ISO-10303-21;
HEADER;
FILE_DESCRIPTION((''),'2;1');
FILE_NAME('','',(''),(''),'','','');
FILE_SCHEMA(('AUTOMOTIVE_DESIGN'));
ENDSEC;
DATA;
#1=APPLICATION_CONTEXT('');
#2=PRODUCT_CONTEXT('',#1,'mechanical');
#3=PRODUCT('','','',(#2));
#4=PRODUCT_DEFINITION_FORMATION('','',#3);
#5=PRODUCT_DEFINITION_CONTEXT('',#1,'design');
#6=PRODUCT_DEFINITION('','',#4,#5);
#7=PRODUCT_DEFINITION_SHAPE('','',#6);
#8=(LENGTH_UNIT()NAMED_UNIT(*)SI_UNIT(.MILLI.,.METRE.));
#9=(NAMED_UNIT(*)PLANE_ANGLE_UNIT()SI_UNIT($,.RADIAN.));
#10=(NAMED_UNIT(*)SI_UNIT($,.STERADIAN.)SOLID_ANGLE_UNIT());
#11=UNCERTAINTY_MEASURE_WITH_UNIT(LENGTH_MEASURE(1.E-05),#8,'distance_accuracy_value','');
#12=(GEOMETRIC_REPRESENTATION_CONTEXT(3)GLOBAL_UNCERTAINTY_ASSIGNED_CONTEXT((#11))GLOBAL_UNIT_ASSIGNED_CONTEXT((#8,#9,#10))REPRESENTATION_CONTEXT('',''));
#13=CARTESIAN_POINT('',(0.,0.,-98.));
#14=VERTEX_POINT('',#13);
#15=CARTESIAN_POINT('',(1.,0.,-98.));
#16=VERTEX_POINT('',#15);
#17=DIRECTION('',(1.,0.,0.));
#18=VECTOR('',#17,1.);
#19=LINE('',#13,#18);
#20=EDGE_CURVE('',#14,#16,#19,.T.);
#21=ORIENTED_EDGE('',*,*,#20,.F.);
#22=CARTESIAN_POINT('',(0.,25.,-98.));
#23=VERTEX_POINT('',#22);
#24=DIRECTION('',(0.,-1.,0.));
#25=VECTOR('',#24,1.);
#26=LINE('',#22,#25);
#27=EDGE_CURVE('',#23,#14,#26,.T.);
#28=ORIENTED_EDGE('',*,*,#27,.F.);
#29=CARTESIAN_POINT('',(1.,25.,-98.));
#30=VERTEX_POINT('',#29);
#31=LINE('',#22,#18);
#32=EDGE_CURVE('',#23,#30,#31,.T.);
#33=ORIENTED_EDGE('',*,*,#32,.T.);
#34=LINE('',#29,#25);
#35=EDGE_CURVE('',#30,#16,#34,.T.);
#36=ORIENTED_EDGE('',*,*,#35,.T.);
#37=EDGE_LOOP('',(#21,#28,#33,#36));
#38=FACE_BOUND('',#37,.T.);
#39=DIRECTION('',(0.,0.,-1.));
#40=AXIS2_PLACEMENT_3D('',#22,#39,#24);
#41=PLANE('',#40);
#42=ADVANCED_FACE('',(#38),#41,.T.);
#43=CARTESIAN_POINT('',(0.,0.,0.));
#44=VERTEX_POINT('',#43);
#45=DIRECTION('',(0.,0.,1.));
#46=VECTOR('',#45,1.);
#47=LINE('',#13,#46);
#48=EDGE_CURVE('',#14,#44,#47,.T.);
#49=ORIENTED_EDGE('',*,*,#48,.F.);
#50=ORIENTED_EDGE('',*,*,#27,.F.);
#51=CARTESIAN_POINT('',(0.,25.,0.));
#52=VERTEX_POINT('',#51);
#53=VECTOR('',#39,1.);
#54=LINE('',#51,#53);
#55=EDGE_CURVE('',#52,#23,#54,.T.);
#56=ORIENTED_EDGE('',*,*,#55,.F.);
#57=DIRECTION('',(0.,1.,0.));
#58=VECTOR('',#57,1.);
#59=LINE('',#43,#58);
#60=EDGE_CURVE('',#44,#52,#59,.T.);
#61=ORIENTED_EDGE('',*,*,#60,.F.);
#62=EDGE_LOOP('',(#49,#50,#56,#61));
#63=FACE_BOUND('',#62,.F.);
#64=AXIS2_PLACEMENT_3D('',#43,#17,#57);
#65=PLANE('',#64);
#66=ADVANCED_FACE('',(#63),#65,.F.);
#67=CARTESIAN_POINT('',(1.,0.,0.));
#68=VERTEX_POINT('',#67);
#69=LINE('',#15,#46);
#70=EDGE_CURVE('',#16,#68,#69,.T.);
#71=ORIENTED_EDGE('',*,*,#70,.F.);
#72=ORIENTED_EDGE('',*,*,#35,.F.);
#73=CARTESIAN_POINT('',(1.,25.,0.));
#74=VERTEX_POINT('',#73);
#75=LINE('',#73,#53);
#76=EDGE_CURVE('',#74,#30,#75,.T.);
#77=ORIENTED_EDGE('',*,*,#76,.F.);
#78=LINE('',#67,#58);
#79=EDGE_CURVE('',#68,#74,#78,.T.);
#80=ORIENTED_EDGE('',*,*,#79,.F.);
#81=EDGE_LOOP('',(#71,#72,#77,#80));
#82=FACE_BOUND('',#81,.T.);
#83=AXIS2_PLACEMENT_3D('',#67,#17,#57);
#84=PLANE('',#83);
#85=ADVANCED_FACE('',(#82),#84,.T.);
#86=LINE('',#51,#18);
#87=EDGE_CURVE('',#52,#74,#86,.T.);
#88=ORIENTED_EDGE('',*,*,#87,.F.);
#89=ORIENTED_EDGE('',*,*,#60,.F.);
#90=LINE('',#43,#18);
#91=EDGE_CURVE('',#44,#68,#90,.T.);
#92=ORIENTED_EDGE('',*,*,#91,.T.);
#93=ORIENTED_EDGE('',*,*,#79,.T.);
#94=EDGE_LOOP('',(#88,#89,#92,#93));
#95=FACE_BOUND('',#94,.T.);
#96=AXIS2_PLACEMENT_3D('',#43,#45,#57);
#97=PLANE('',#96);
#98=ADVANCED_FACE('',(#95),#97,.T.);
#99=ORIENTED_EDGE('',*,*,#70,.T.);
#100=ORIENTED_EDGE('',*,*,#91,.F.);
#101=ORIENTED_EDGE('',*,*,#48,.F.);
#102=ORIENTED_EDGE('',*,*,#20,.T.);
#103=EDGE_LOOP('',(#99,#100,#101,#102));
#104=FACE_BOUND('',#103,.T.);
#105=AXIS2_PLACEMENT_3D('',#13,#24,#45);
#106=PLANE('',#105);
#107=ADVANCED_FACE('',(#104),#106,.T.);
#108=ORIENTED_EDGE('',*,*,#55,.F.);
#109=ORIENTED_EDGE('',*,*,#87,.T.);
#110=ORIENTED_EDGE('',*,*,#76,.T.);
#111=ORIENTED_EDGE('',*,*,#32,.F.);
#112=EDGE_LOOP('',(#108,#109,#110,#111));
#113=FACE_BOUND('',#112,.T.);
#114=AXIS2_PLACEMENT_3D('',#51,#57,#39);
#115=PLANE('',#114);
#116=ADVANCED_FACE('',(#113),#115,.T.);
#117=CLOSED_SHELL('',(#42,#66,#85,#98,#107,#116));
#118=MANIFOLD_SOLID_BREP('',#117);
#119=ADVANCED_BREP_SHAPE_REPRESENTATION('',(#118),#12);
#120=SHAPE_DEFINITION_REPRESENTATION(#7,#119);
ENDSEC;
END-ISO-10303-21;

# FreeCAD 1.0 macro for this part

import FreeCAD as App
import Part
import Sketcher
from FreeCAD import Vector
Q = App.Units.Quantity


def add_polygon(sketch, points):
    """Adds a closed chain of lines whose ends are joined by coincident constraints."""
    first, n = sketch.GeometryCount, len(points)
    for a, b in zip(points, points[1:] + points[:1]):
        sketch.addGeometry(Part.LineSegment(App.Vector(*a, 0), App.Vector(*b, 0)), False)
    for i in range(n):
        sketch.addConstraint(Sketcher.Constraint("Coincident", first + i, 2, first + (i + 1) % n, 1))

doc = App.newDocument("Part")
body = doc.addObject("PartDesign::Body", "Body")

# Sketch on YZ plane
sketch1 = doc.addObject("Sketcher::SketchObject", "Sketch")
body.addObject(sketch1)
sketch1.AttachmentSupport = (doc.YZ_Plane, [""])
sketch1.MapMode = "FlatFace"
add_polygon(sketch1, [(25, 0), (0, 0), (0, -98), (25, -98)])  # lines 0-3
sketch1.addConstraint([
    Sketcher.Constraint("Horizontal", 0),
    Sketcher.Constraint("Vertical", 1),
    Sketcher.Constraint("Horizontal", 2),
    Sketcher.Constraint("Vertical", 3),
    Sketcher.Constraint("Coincident", 0, 2, -1, 1),
    Sketcher.Constraint("DistanceX", 0, 2, 0, 1, Q("25 mm")),
    Sketcher.Constraint("DistanceY", 1, 2, 1, 1, Q("98 mm")),
])
pad1 = doc.addObject("PartDesign::Pad", "Pad")
body.addObject(pad1)
pad1.Profile = sketch1
pad1.Length = 1

doc.recompute()
